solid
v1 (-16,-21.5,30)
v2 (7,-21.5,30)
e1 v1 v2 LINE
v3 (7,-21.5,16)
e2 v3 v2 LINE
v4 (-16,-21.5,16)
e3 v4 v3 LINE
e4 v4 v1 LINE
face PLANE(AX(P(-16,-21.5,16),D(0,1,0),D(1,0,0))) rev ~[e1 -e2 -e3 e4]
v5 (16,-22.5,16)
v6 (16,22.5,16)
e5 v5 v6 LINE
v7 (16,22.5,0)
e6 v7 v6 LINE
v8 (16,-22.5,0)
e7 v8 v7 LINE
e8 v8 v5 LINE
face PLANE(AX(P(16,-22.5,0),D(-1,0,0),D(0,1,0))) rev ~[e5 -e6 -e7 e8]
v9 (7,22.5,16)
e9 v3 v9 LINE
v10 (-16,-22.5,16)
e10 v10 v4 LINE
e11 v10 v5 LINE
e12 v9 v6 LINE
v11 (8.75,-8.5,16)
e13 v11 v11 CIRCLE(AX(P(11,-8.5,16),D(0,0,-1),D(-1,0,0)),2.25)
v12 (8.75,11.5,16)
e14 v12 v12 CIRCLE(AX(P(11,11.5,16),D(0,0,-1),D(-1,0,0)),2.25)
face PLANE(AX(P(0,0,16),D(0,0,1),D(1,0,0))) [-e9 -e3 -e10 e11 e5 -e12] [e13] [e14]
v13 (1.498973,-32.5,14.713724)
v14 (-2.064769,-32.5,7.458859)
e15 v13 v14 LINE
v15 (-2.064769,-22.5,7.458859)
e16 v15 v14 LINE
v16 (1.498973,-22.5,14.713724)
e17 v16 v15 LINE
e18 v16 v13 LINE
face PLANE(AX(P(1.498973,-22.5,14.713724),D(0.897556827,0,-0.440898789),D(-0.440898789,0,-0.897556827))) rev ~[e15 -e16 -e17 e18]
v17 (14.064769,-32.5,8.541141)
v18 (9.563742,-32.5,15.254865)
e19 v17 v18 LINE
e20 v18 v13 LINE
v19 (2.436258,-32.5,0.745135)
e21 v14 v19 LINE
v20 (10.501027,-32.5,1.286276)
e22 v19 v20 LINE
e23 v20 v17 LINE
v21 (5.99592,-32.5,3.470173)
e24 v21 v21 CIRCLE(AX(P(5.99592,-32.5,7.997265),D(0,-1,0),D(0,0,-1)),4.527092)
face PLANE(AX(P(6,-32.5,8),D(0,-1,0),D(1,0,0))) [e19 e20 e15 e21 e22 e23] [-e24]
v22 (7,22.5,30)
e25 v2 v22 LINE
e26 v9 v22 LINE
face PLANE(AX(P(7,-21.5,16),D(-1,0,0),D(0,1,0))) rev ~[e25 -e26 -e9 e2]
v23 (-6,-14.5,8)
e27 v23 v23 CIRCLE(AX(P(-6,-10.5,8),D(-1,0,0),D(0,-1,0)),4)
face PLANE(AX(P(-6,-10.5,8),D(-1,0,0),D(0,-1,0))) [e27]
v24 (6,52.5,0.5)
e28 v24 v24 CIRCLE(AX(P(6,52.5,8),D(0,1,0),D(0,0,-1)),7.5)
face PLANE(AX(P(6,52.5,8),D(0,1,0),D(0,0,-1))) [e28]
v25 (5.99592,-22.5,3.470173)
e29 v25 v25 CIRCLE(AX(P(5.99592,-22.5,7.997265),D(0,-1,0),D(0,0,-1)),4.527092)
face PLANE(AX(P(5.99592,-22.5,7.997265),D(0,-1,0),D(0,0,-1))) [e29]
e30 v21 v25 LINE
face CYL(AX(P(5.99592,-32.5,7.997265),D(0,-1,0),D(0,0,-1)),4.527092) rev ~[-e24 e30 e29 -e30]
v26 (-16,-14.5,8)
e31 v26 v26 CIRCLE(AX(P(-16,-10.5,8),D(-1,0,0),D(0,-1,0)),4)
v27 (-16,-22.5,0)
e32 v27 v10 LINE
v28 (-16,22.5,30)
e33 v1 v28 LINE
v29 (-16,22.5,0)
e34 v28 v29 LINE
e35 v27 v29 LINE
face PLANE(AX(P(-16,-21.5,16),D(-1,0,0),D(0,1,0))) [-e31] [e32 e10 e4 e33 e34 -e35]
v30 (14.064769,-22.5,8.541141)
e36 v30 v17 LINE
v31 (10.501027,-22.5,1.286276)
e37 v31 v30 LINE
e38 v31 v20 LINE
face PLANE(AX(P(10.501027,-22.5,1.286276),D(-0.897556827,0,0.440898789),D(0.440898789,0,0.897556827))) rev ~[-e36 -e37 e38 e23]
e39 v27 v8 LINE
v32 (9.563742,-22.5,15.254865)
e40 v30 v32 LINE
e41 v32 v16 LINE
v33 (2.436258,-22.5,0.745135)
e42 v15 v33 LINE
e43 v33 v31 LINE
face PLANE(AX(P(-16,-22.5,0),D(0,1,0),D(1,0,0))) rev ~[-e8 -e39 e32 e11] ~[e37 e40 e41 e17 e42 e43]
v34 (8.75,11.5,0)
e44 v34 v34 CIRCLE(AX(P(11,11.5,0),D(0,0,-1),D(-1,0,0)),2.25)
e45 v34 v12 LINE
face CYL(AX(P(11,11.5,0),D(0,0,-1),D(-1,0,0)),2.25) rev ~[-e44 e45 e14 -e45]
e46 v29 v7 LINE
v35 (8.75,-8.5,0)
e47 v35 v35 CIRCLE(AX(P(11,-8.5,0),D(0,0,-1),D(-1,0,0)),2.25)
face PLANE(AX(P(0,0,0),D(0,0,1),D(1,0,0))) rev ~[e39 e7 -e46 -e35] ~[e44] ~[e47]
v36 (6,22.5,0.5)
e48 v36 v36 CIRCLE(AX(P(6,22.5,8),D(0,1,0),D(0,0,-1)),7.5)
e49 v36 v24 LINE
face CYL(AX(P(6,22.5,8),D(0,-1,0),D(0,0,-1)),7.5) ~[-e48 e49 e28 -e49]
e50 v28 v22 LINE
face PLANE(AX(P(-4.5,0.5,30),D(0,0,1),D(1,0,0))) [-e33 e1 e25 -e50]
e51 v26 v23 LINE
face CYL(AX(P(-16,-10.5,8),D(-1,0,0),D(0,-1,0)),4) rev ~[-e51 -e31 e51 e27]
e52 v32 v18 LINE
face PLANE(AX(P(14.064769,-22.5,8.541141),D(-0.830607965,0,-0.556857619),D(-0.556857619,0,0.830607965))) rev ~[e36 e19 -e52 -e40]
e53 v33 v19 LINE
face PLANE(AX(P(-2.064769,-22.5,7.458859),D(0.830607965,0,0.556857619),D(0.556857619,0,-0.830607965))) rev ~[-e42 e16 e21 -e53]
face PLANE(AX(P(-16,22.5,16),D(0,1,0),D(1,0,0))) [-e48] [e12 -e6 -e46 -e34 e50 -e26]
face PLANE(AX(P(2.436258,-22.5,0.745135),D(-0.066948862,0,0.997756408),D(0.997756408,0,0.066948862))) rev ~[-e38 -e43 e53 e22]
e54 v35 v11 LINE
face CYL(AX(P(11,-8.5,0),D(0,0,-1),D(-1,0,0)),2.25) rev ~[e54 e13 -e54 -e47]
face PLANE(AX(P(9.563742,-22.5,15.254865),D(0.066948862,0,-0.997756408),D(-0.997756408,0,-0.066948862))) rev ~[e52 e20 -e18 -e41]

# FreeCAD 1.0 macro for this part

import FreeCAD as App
import Part
import Sketcher
from FreeCAD import Vector

doc = App.newDocument("Part")
body = doc.addObject("PartDesign::Body", "Body")

sketch1 = body.newObject("Sketcher::SketchObject", "Sketch")
sketch1.AttachmentSupport = (doc.getObject("XY_Plane"), [""])
sketch1.MapMode = "FlatFace"
sketch1.addGeometry(Part.LineSegment(Vector(-16, 22.5, 0), Vector(-16, -22.5, 0)), False)
sketch1.addGeometry(Part.LineSegment(Vector(-16, -22.5, 0), Vector(16, -22.5, 0)), False)
sketch1.addGeometry(Part.LineSegment(Vector(16, -22.5, 0), Vector(16, 22.5, 0)), False)
sketch1.addGeometry(Part.LineSegment(Vector(16, 22.5, 0), Vector(-16, 22.5, 0)), False)
sketch1.addConstraint(Sketcher.Constraint("Coincident", 0, 2, 1, 1))
sketch1.addConstraint(Sketcher.Constraint("Coincident", 1, 2, 2, 1))
sketch1.addConstraint(Sketcher.Constraint("Coincident", 2, 2, 3, 1))
sketch1.addConstraint(Sketcher.Constraint("Coincident", 3, 2, 0, 1))
sketch1.addConstraint(Sketcher.Constraint("Vertical", 0))
sketch1.addConstraint(Sketcher.Constraint("Horizontal", 1))
sketch1.addConstraint(Sketcher.Constraint("Vertical", 2))
sketch1.addConstraint(Sketcher.Constraint("Horizontal", 3))
sketch1.addConstraint(Sketcher.Constraint("Symmetric", 0, 2, 2, 2, -1, 1))
sketch1.addConstraint(Sketcher.Constraint("DistanceX", 1, 1, 1, 2, 32.0))
sketch1.addConstraint(Sketcher.Constraint("DistanceY", 0, 2, 0, 1, 45.0))
pad1 = body.newObject("PartDesign::Pad", "Pad")
pad1.Profile = sketch1
pad1.Length = 16

sketch2 = body.newObject("Sketcher::SketchObject", "Sketch001")
sketch2.AttachmentSupport = (doc.getObject("XY_Plane"), [""])
sketch2.MapMode = "FlatFace"
sketch2.addGeometry(Part.Circle(Vector(11, 11.5, 0), Vector(0, 0, 1), 2.25), False)
sketch2.addConstraint(Sketcher.Constraint("Diameter", 0, 4.5))
sketch2.addConstraint(Sketcher.Constraint("DistanceX", -1, 1, 0, 3, 11.0))
sketch2.addConstraint(Sketcher.Constraint("DistanceY", -1, 1, 0, 3, 11.5))
pocket1 = body.newObject("PartDesign::Pocket", "Pocket")
pocket1.Profile = sketch2
pocket1.Type = "UpToFirst"
pocket1.Reversed = True

sketch3 = body.newObject("Sketcher::SketchObject", "Sketch002")
sketch3.AttachmentSupport = (doc.getObject("XY_Plane"), [""])
sketch3.MapMode = "FlatFace"
sketch3.addGeometry(Part.Circle(Vector(11, -8.5, 0), Vector(0, 0, 1), 2.25), False)
sketch3.addConstraint(Sketcher.Constraint("Diameter", 0, 4.5))
sketch3.addConstraint(Sketcher.Constraint("DistanceX", -1, 1, 0, 3, 11.0))
sketch3.addConstraint(Sketcher.Constraint("DistanceY", 0, 3, -1, 1, 8.5))
pocket2 = body.newObject("PartDesign::Pocket", "Pocket001")
pocket2.Profile = sketch3
pocket2.Type = "UpToFirst"
pocket2.Reversed = True

sketch4 = body.newObject("Sketcher::SketchObject", "Sketch003")
sketch4.AttachmentSupport = (doc.getObject("XZ_Plane"), [""])
sketch4.MapMode = "FlatFace"
sketch4.AttachmentOffset = App.Placement(Vector(0, 0, -22.5), App.Rotation())
sketch4.addGeometry(Part.Circle(Vector(6, 8, 0), Vector(0, 0, 1), 7.5), False)
sketch4.addConstraint(Sketcher.Constraint("Diameter", 0, 15.0))
sketch4.addConstraint(Sketcher.Constraint("DistanceX", -1, 1, 0, 3, 6.0))
sketch4.addConstraint(Sketcher.Constraint("DistanceY", -1, 1, 0, 3, 8.0))
pad2 = body.newObject("PartDesign::Pad", "Pad001")
pad2.Profile = sketch4
pad2.Length = 30
pad2.Reversed = True

sketch5 = body.newObject("Sketcher::SketchObject", "Sketch004")
sketch5.AttachmentSupport = (doc.getObject("XY_Plane"), [""])
sketch5.MapMode = "FlatFace"
sketch5.AttachmentOffset = App.Placement(Vector(0, 0, 16), App.Rotation())
sketch5.addGeometry(Part.LineSegment(Vector(-16, 22.5, 0), Vector(-16, -21.5, 0)), False)
sketch5.addGeometry(Part.LineSegment(Vector(-16, -21.5, 0), Vector(7, -21.5, 0)), False)
sketch5.addGeometry(Part.LineSegment(Vector(7, -21.5, 0), Vector(7, 22.5, 0)), False)
sketch5.addGeometry(Part.LineSegment(Vector(7, 22.5, 0), Vector(-16, 22.5, 0)), False)
sketch5.addConstraint(Sketcher.Constraint("Coincident", 0, 2, 1, 1))
sketch5.addConstraint(Sketcher.Constraint("Coincident", 1, 2, 2, 1))
sketch5.addConstraint(Sketcher.Constraint("Coincident", 2, 2, 3, 1))
sketch5.addConstraint(Sketcher.Constraint("Coincident", 3, 2, 0, 1))
sketch5.addConstraint(Sketcher.Constraint("Vertical", 0))
sketch5.addConstraint(Sketcher.Constraint("Horizontal", 1))
sketch5.addConstraint(Sketcher.Constraint("Vertical", 2))
sketch5.addConstraint(Sketcher.Constraint("Horizontal", 3))
sketch5.addConstraint(Sketcher.Constraint("DistanceX", 1, 1, 1, 2, 23.0))
sketch5.addConstraint(Sketcher.Constraint("DistanceY", 0, 2, 0, 1, 44.0))
sketch5.addConstraint(Sketcher.Constraint("DistanceX", 0, 2, -1, 1, 16.0))
sketch5.addConstraint(Sketcher.Constraint("DistanceY", 0, 2, -1, 1, 21.5))
pad3 = body.newObject("PartDesign::Pad", "Pad002")
pad3.Profile = sketch5
pad3.Length = 14

sketch6 = body.newObject("Sketcher::SketchObject", "Sketch005")
sketch6.AttachmentSupport = (doc.getObject("XZ_Plane"), [""])
sketch6.MapMode = "FlatFace"
sketch6.AttachmentOffset = App.Placement(Vector(0, 0, 22.5), App.Rotation())
sketch6.addGeometry(Part.LineSegment(Vector(10.501027, 1.286276, 0), Vector(14.064769, 8.541141, 0)), False)
sketch6.addGeometry(Part.LineSegment(Vector(14.064769, 8.541141, 0), Vector(9.563742, 15.254865, 0)), False)
sketch6.addGeometry(Part.LineSegment(Vector(9.563742, 15.254865, 0), Vector(1.498973, 14.713724, 0)), False)
sketch6.addGeometry(Part.LineSegment(Vector(1.498973, 14.713724, 0), Vector(-2.064769, 7.458859, 0)), False)
sketch6.addGeometry(Part.LineSegment(Vector(-2.064769, 7.458859, 0), Vector(2.436258, 0.745135, 0)), False)
sketch6.addGeometry(Part.LineSegment(Vector(2.436258, 0.745135, 0), Vector(10.501027, 1.286276, 0)), False)
sketch6.addConstraint(Sketcher.Constraint("Coincident", 0, 2, 1, 1))
sketch6.addConstraint(Sketcher.Constraint("Coincident", 1, 2, 2, 1))
sketch6.addConstraint(Sketcher.Constraint("Coincident", 2, 2, 3, 1))
sketch6.addConstraint(Sketcher.Constraint("Coincident", 3, 2, 4, 1))
sketch6.addConstraint(Sketcher.Constraint("Coincident", 4, 2, 5, 1))
sketch6.addConstraint(Sketcher.Constraint("Coincident", 5, 2, 0, 1))
sketch6.addConstraint(Sketcher.Constraint("Parallel", 0, 3))
sketch6.addConstraint(Sketcher.Constraint("Parallel", 1, 4))
sketch6.addConstraint(Sketcher.Constraint("Parallel", 2, 5))
sketch6.addConstraint(Sketcher.Constraint("Equal", 0, 1))
sketch6.addConstraint(Sketcher.Constraint("Equal", 1, 2))
sketch6.addConstraint(Sketcher.Constraint("Equal", 2, 3))
sketch6.addConstraint(Sketcher.Constraint("DistanceX", -1, 1, 0, 2, 14.064769))
sketch6.addConstraint(Sketcher.Constraint("DistanceY", -1, 1, 0, 2, 8.541141))
sketch6.addConstraint(Sketcher.Constraint("DistanceX", 3, 2, -1, 1, 2.064769))
sketch6.addConstraint(Sketcher.Constraint("DistanceY", -1, 1, 3, 2, 7.458859))
sketch6.addConstraint(Sketcher.Constraint("DistanceX", 2, 2, 1, 2, 8.064769))
sketch6.addConstraint(Sketcher.Constraint("DistanceY", 2, 2, 1, 2, 0.541141))
pad4 = body.newObject("PartDesign::Pad", "Pad003")
pad4.Profile = sketch6
pad4.Length = 10

sketch7 = body.newObject("Sketcher::SketchObject", "Sketch006")
sketch7.AttachmentSupport = (doc.getObject("XZ_Plane"), [""])
sketch7.MapMode = "FlatFace"
sketch7.AttachmentOffset = App.Placement(Vector(0, 0, 32.5), App.Rotation())
sketch7.addGeometry(Part.Circle(Vector(5.99592, 7.997265, 0), Vector(0, 0, 1), 4.527092), False)
sketch7.addConstraint(Sketcher.Constraint("Diameter", 0, 9.054184))
sketch7.addConstraint(Sketcher.Constraint("DistanceX", -1, 1, 0, 3, 5.99592))
sketch7.addConstraint(Sketcher.Constraint("DistanceY", -1, 1, 0, 3, 7.997265))
pocket3 = body.newObject("PartDesign::Pocket", "Pocket002")
pocket3.Profile = sketch7
pocket3.Length = 10

sketch8 = body.newObject("Sketcher::SketchObject", "Sketch007")
sketch8.AttachmentSupport = (doc.getObject("YZ_Plane"), [""])
sketch8.MapMode = "FlatFace"
sketch8.AttachmentOffset = App.Placement(Vector(0, 0, -16), App.Rotation())
sketch8.addGeometry(Part.Circle(Vector(-10.5, 8, 0), Vector(0, 0, 1), 4), False)
sketch8.addConstraint(Sketcher.Constraint("Diameter", 0, 8.0))
sketch8.addConstraint(Sketcher.Constraint("DistanceY", -1, 1, 0, 3, 8.0))
sketch8.addConstraint(Sketcher.Constraint("DistanceX", 0, 3, -1, 1, 10.5))
pocket4 = body.newObject("PartDesign::Pocket", "Pocket003")
pocket4.Profile = sketch8
pocket4.Length = 10
pocket4.Reversed = True

doc.recompute()
